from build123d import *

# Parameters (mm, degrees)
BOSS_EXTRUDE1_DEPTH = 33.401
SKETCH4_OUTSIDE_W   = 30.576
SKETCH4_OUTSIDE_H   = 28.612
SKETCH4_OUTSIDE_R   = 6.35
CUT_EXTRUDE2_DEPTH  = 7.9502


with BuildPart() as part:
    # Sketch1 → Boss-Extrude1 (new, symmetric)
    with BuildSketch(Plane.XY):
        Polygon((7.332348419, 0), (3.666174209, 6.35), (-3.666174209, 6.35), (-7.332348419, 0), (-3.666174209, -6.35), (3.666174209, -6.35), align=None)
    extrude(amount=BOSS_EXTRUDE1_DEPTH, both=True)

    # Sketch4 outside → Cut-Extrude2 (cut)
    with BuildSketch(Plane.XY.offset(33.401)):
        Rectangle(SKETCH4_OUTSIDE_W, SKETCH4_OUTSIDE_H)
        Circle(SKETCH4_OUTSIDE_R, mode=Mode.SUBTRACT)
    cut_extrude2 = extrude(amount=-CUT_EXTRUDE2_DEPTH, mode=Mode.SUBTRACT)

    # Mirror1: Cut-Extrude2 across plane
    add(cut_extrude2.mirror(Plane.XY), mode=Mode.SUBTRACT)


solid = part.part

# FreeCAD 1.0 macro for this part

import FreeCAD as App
import Part
import Sketcher
Q = App.Units.Quantity

doc = App.newDocument("Part")
body = doc.addObject("PartDesign::Body", "Body")

# Sketch on XY plane
sketch1 = body.newObject("Sketcher::SketchObject", "Sketch")
sketch1.AttachmentSupport = (doc.getObject("XY_Plane"), [""])
sketch1.MapMode = "FlatFace"
sketch1.addGeometry([
    Part.LineSegment(App.Vector(7, 0, 0), App.Vector(4, 6, 0)),  # 0
    Part.LineSegment(App.Vector(4, 6, 0), App.Vector(-4, 6, 0)),  # 1
    Part.LineSegment(App.Vector(-4, 6, 0), App.Vector(-7, 0, 0)),  # 2
    Part.LineSegment(App.Vector(-7, 0, 0), App.Vector(-4, -6, 0)),  # 3
    Part.LineSegment(App.Vector(-4, -6, 0), App.Vector(4, -6, 0)),  # 4
    Part.LineSegment(App.Vector(4, -6, 0), App.Vector(7, 0, 0)),  # 5
], False)
sketch1.addConstraint([
    Sketcher.Constraint("Coincident", 0, 2, 1, 1),
    Sketcher.Constraint("Coincident", 1, 2, 2, 1),
    Sketcher.Constraint("Coincident", 2, 2, 3, 1),
    Sketcher.Constraint("Coincident", 3, 2, 4, 1),
    Sketcher.Constraint("Coincident", 4, 2, 5, 1),
    Sketcher.Constraint("Coincident", 5, 2, 0, 1),
    Sketcher.Constraint("Horizontal", 1),
    Sketcher.Constraint("Horizontal", 4),
    Sketcher.Constraint("Symmetric", 0, 2, 3, 2, -1, 1),
    Sketcher.Constraint("Symmetric", 2, 2, 5, 2, -1, 1),
    Sketcher.Constraint("PointOnObject", 2, 2, -1),
    Sketcher.Constraint("Parallel", 2, 5),
    Sketcher.Constraint("Vertical", 1, 2, 3, 2),
    Sketcher.Constraint("Angle", 0, Q("120 deg")),
    Sketcher.Constraint("DistanceY", 3, 2, 1, 2, Q("0.5 in")),
    Sketcher.Constraint("DistanceX", 1, 2, 1, 1, Q("7.332348 mm")),
])
pad1 = body.newObject("PartDesign::Pad", "Pad")
pad1.Profile = sketch1
pad1.Length = Q("2.63 in")
pad1.Midplane = True

# Sketch on XY plane
sketch2 = body.newObject("Sketcher::SketchObject", "Sketch001")
sketch2.AttachmentSupport = (doc.getObject("XY_Plane"), [""])
sketch2.MapMode = "FlatFace"
sketch2.AttachmentOffset = App.Placement(App.Vector(0, 0, 1.315 * 25.4), App.Rotation())
sketch2.addGeometry([
    Part.LineSegment(App.Vector(-15, 14, 0), App.Vector(-15, -14, 0)),  # 0
    Part.LineSegment(App.Vector(-15, -14, 0), App.Vector(15, -14, 0)),  # 1
    Part.LineSegment(App.Vector(15, -14, 0), App.Vector(15, 14, 0)),  # 2
    Part.LineSegment(App.Vector(15, 14, 0), App.Vector(-15, 14, 0)),  # 3
    Part.Circle(App.Vector(0, 0, 0), App.Vector(0, 0, 1), 6),  # 4
], False)
sketch2.addConstraint([
    Sketcher.Constraint("Coincident", 0, 2, 1, 1),
    Sketcher.Constraint("Coincident", 1, 2, 2, 1),
    Sketcher.Constraint("Coincident", 2, 2, 3, 1),
    Sketcher.Constraint("Coincident", 3, 2, 0, 1),
    Sketcher.Constraint("Vertical", 0),
    Sketcher.Constraint("Horizontal", 1),
    Sketcher.Constraint("Vertical", 2),
    Sketcher.Constraint("Horizontal", 3),
    Sketcher.Constraint("Coincident", 4, 3, -1, 1),
    Sketcher.Constraint("Symmetric", 0, 2, 2, 2, -1, 1),
    Sketcher.Constraint("Diameter", 4, Q("0.5 in")),
    Sketcher.Constraint("DistanceX", 1, 1, 1, 2, Q("30.576 mm")),
    Sketcher.Constraint("DistanceY", 0, 2, 0, 1, Q("28.612 mm")),
])
pocket1 = body.newObject("PartDesign::Pocket", "Pocket")
pocket1.Profile = sketch2
pocket1.Length = Q("0.313 in")
doc.recompute()

mirrored = body.newObject("PartDesign::Mirrored", "Mirrored")
mirrored.Originals = [pocket1]
mirrored.MirrorPlane = (doc.getObject("XY_Plane"), [""])
body.Tip = mirrored

doc.recompute()
